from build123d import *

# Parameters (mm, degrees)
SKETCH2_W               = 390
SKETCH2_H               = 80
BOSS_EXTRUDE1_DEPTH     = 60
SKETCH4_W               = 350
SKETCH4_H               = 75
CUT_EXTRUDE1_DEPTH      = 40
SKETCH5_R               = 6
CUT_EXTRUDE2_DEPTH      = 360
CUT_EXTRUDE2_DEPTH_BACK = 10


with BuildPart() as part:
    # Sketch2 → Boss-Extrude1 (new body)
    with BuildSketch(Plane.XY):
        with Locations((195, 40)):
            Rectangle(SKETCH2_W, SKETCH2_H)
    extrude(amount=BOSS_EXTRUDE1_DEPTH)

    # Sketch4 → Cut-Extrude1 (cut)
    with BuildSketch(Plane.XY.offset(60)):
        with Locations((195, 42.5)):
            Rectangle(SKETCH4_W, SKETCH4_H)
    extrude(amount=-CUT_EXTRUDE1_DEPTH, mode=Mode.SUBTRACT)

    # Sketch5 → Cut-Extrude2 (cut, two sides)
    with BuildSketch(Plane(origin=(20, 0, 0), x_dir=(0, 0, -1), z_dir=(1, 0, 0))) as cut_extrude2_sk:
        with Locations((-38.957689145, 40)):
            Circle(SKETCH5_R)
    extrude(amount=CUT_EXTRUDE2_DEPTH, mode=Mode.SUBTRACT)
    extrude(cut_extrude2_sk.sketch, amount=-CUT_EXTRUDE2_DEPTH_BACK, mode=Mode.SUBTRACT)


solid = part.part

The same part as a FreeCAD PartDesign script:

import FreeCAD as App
import Part
import Sketcher
from FreeCAD import Vector
Q = App.Units.Quantity

doc = App.newDocument("Part")
body = doc.addObject("PartDesign::Body", "Body")

# Sketch on XY plane
sketch1 = body.newObject("Sketcher::SketchObject", "Sketch")
sketch1.AttachmentSupport = (doc.getObject("XY_Plane"), [""])
sketch1.MapMode = "FlatFace"
sketch1.addGeometry(Part.LineSegment(Vector(0, 80, 0), Vector(0, 0, 0)), False)
sketch1.addGeometry(Part.LineSegment(Vector(0, 0, 0), Vector(390, 0, 0)), False)
sketch1.addGeometry(Part.LineSegment(Vector(390, 0, 0), Vector(390, 80, 0)), False)
sketch1.addGeometry(Part.LineSegment(Vector(390, 80, 0), Vector(0, 80, 0)), False)
sketch1.addConstraint(Sketcher.Constraint("Coincident", 0, 2, 1, 1))
sketch1.addConstraint(Sketcher.Constraint("Coincident", 1, 2, 2, 1))
sketch1.addConstraint(Sketcher.Constraint("Coincident", 2, 2, 3, 1))
sketch1.addConstraint(Sketcher.Constraint("Coincident", 3, 2, 0, 1))
sketch1.addConstraint(Sketcher.Constraint("Vertical", 0))
sketch1.addConstraint(Sketcher.Constraint("Horizontal", 1))
sketch1.addConstraint(Sketcher.Constraint("Vertical", 2))
sketch1.addConstraint(Sketcher.Constraint("Horizontal", 3))
sketch1.addConstraint(Sketcher.Constraint("Coincident", 0, 2, -1, 1))
sketch1.addConstraint(Sketcher.Constraint("DistanceX", 1, 1, 1, 2, Q("390 mm")))
sketch1.addConstraint(Sketcher.Constraint("DistanceY", 0, 2, 0, 1, Q("80 mm")))
pad1 = body.newObject("PartDesign::Pad", "Pad")
pad1.Profile = sketch1
pad1.Length = 60

# Sketch on XY plane
sketch2 = body.newObject("Sketcher::SketchObject", "Sketch001")
sketch2.AttachmentSupport = (doc.getObject("XY_Plane"), [""])
sketch2.MapMode = "FlatFace"
sketch2.AttachmentOffset = App.Placement(Vector(0, 0, 60), App.Rotation())
sketch2.addGeometry(Part.LineSegment(Vector(20, 80, 0), Vector(20, 5, 0)), False)
sketch2.addGeometry(Part.LineSegment(Vector(20, 5, 0), Vector(370, 5, 0)), False)
sketch2.addGeometry(Part.LineSegment(Vector(370, 5, 0), Vector(370, 80, 0)), False)
sketch2.addGeometry(Part.LineSegment(Vector(370, 80, 0), Vector(20, 80, 0)), False)
sketch2.addConstraint(Sketcher.Constraint("Coincident", 0, 2, 1, 1))
sketch2.addConstraint(Sketcher.Constraint("Coincident", 1, 2, 2, 1))
sketch2.addConstraint(Sketcher.Constraint("Coincident", 2, 2, 3, 1))
sketch2.addConstraint(Sketcher.Constraint("Coincident", 3, 2, 0, 1))
sketch2.addConstraint(Sketcher.Constraint("Vertical", 0))
sketch2.addConstraint(Sketcher.Constraint("Horizontal", 1))
sketch2.addConstraint(Sketcher.Constraint("Vertical", 2))
sketch2.addConstraint(Sketcher.Constraint("Horizontal", 3))
sketch2.addConstraint(Sketcher.Constraint("DistanceX", 1, 1, 1, 2, Q("350 mm")))
sketch2.addConstraint(Sketcher.Constraint("DistanceY", 0, 2, 0, 1, Q("75 mm")))
sketch2.addConstraint(Sketcher.Constraint("DistanceX", -1, 1, 0, 2, Q("20 mm")))
sketch2.addConstraint(Sketcher.Constraint("DistanceY", -1, 1, 0, 2, Q("5 mm")))
pocket1 = body.newObject("PartDesign::Pocket", "Pocket")
pocket1.Profile = sketch2
pocket1.Length = 40

# Sketch on YZ plane
sketch3 = body.newObject("Sketcher::SketchObject", "Sketch002")
sketch3.AttachmentSupport = (doc.getObject("YZ_Plane"), [""])
sketch3.MapMode = "FlatFace"
sketch3.AttachmentOffset = App.Placement(Vector(0, 0, 20), App.Rotation())
sketch3.addGeometry(Part.Circle(Vector(40, 39, 0), Vector(0, 0, 1), 6), False)
sketch3.addConstraint(Sketcher.Constraint("Diameter", 0, Q("12 mm")))
sketch3.addConstraint(Sketcher.Constraint("DistanceX", -1, 1, 0, 3, Q("40 mm")))
sketch3.addConstraint(Sketcher.Constraint("DistanceY", -1, 1, 0, 3, Q("38.957689 mm")))
pocket2 = body.newObject("PartDesign::Pocket", "Pocket001")
pocket2.Profile = sketch3
pocket2.Type = "TwoLengths"
pocket2.Length = 360
pocket2.Length2 = 10
pocket2.Reversed = True

doc.recompute()
